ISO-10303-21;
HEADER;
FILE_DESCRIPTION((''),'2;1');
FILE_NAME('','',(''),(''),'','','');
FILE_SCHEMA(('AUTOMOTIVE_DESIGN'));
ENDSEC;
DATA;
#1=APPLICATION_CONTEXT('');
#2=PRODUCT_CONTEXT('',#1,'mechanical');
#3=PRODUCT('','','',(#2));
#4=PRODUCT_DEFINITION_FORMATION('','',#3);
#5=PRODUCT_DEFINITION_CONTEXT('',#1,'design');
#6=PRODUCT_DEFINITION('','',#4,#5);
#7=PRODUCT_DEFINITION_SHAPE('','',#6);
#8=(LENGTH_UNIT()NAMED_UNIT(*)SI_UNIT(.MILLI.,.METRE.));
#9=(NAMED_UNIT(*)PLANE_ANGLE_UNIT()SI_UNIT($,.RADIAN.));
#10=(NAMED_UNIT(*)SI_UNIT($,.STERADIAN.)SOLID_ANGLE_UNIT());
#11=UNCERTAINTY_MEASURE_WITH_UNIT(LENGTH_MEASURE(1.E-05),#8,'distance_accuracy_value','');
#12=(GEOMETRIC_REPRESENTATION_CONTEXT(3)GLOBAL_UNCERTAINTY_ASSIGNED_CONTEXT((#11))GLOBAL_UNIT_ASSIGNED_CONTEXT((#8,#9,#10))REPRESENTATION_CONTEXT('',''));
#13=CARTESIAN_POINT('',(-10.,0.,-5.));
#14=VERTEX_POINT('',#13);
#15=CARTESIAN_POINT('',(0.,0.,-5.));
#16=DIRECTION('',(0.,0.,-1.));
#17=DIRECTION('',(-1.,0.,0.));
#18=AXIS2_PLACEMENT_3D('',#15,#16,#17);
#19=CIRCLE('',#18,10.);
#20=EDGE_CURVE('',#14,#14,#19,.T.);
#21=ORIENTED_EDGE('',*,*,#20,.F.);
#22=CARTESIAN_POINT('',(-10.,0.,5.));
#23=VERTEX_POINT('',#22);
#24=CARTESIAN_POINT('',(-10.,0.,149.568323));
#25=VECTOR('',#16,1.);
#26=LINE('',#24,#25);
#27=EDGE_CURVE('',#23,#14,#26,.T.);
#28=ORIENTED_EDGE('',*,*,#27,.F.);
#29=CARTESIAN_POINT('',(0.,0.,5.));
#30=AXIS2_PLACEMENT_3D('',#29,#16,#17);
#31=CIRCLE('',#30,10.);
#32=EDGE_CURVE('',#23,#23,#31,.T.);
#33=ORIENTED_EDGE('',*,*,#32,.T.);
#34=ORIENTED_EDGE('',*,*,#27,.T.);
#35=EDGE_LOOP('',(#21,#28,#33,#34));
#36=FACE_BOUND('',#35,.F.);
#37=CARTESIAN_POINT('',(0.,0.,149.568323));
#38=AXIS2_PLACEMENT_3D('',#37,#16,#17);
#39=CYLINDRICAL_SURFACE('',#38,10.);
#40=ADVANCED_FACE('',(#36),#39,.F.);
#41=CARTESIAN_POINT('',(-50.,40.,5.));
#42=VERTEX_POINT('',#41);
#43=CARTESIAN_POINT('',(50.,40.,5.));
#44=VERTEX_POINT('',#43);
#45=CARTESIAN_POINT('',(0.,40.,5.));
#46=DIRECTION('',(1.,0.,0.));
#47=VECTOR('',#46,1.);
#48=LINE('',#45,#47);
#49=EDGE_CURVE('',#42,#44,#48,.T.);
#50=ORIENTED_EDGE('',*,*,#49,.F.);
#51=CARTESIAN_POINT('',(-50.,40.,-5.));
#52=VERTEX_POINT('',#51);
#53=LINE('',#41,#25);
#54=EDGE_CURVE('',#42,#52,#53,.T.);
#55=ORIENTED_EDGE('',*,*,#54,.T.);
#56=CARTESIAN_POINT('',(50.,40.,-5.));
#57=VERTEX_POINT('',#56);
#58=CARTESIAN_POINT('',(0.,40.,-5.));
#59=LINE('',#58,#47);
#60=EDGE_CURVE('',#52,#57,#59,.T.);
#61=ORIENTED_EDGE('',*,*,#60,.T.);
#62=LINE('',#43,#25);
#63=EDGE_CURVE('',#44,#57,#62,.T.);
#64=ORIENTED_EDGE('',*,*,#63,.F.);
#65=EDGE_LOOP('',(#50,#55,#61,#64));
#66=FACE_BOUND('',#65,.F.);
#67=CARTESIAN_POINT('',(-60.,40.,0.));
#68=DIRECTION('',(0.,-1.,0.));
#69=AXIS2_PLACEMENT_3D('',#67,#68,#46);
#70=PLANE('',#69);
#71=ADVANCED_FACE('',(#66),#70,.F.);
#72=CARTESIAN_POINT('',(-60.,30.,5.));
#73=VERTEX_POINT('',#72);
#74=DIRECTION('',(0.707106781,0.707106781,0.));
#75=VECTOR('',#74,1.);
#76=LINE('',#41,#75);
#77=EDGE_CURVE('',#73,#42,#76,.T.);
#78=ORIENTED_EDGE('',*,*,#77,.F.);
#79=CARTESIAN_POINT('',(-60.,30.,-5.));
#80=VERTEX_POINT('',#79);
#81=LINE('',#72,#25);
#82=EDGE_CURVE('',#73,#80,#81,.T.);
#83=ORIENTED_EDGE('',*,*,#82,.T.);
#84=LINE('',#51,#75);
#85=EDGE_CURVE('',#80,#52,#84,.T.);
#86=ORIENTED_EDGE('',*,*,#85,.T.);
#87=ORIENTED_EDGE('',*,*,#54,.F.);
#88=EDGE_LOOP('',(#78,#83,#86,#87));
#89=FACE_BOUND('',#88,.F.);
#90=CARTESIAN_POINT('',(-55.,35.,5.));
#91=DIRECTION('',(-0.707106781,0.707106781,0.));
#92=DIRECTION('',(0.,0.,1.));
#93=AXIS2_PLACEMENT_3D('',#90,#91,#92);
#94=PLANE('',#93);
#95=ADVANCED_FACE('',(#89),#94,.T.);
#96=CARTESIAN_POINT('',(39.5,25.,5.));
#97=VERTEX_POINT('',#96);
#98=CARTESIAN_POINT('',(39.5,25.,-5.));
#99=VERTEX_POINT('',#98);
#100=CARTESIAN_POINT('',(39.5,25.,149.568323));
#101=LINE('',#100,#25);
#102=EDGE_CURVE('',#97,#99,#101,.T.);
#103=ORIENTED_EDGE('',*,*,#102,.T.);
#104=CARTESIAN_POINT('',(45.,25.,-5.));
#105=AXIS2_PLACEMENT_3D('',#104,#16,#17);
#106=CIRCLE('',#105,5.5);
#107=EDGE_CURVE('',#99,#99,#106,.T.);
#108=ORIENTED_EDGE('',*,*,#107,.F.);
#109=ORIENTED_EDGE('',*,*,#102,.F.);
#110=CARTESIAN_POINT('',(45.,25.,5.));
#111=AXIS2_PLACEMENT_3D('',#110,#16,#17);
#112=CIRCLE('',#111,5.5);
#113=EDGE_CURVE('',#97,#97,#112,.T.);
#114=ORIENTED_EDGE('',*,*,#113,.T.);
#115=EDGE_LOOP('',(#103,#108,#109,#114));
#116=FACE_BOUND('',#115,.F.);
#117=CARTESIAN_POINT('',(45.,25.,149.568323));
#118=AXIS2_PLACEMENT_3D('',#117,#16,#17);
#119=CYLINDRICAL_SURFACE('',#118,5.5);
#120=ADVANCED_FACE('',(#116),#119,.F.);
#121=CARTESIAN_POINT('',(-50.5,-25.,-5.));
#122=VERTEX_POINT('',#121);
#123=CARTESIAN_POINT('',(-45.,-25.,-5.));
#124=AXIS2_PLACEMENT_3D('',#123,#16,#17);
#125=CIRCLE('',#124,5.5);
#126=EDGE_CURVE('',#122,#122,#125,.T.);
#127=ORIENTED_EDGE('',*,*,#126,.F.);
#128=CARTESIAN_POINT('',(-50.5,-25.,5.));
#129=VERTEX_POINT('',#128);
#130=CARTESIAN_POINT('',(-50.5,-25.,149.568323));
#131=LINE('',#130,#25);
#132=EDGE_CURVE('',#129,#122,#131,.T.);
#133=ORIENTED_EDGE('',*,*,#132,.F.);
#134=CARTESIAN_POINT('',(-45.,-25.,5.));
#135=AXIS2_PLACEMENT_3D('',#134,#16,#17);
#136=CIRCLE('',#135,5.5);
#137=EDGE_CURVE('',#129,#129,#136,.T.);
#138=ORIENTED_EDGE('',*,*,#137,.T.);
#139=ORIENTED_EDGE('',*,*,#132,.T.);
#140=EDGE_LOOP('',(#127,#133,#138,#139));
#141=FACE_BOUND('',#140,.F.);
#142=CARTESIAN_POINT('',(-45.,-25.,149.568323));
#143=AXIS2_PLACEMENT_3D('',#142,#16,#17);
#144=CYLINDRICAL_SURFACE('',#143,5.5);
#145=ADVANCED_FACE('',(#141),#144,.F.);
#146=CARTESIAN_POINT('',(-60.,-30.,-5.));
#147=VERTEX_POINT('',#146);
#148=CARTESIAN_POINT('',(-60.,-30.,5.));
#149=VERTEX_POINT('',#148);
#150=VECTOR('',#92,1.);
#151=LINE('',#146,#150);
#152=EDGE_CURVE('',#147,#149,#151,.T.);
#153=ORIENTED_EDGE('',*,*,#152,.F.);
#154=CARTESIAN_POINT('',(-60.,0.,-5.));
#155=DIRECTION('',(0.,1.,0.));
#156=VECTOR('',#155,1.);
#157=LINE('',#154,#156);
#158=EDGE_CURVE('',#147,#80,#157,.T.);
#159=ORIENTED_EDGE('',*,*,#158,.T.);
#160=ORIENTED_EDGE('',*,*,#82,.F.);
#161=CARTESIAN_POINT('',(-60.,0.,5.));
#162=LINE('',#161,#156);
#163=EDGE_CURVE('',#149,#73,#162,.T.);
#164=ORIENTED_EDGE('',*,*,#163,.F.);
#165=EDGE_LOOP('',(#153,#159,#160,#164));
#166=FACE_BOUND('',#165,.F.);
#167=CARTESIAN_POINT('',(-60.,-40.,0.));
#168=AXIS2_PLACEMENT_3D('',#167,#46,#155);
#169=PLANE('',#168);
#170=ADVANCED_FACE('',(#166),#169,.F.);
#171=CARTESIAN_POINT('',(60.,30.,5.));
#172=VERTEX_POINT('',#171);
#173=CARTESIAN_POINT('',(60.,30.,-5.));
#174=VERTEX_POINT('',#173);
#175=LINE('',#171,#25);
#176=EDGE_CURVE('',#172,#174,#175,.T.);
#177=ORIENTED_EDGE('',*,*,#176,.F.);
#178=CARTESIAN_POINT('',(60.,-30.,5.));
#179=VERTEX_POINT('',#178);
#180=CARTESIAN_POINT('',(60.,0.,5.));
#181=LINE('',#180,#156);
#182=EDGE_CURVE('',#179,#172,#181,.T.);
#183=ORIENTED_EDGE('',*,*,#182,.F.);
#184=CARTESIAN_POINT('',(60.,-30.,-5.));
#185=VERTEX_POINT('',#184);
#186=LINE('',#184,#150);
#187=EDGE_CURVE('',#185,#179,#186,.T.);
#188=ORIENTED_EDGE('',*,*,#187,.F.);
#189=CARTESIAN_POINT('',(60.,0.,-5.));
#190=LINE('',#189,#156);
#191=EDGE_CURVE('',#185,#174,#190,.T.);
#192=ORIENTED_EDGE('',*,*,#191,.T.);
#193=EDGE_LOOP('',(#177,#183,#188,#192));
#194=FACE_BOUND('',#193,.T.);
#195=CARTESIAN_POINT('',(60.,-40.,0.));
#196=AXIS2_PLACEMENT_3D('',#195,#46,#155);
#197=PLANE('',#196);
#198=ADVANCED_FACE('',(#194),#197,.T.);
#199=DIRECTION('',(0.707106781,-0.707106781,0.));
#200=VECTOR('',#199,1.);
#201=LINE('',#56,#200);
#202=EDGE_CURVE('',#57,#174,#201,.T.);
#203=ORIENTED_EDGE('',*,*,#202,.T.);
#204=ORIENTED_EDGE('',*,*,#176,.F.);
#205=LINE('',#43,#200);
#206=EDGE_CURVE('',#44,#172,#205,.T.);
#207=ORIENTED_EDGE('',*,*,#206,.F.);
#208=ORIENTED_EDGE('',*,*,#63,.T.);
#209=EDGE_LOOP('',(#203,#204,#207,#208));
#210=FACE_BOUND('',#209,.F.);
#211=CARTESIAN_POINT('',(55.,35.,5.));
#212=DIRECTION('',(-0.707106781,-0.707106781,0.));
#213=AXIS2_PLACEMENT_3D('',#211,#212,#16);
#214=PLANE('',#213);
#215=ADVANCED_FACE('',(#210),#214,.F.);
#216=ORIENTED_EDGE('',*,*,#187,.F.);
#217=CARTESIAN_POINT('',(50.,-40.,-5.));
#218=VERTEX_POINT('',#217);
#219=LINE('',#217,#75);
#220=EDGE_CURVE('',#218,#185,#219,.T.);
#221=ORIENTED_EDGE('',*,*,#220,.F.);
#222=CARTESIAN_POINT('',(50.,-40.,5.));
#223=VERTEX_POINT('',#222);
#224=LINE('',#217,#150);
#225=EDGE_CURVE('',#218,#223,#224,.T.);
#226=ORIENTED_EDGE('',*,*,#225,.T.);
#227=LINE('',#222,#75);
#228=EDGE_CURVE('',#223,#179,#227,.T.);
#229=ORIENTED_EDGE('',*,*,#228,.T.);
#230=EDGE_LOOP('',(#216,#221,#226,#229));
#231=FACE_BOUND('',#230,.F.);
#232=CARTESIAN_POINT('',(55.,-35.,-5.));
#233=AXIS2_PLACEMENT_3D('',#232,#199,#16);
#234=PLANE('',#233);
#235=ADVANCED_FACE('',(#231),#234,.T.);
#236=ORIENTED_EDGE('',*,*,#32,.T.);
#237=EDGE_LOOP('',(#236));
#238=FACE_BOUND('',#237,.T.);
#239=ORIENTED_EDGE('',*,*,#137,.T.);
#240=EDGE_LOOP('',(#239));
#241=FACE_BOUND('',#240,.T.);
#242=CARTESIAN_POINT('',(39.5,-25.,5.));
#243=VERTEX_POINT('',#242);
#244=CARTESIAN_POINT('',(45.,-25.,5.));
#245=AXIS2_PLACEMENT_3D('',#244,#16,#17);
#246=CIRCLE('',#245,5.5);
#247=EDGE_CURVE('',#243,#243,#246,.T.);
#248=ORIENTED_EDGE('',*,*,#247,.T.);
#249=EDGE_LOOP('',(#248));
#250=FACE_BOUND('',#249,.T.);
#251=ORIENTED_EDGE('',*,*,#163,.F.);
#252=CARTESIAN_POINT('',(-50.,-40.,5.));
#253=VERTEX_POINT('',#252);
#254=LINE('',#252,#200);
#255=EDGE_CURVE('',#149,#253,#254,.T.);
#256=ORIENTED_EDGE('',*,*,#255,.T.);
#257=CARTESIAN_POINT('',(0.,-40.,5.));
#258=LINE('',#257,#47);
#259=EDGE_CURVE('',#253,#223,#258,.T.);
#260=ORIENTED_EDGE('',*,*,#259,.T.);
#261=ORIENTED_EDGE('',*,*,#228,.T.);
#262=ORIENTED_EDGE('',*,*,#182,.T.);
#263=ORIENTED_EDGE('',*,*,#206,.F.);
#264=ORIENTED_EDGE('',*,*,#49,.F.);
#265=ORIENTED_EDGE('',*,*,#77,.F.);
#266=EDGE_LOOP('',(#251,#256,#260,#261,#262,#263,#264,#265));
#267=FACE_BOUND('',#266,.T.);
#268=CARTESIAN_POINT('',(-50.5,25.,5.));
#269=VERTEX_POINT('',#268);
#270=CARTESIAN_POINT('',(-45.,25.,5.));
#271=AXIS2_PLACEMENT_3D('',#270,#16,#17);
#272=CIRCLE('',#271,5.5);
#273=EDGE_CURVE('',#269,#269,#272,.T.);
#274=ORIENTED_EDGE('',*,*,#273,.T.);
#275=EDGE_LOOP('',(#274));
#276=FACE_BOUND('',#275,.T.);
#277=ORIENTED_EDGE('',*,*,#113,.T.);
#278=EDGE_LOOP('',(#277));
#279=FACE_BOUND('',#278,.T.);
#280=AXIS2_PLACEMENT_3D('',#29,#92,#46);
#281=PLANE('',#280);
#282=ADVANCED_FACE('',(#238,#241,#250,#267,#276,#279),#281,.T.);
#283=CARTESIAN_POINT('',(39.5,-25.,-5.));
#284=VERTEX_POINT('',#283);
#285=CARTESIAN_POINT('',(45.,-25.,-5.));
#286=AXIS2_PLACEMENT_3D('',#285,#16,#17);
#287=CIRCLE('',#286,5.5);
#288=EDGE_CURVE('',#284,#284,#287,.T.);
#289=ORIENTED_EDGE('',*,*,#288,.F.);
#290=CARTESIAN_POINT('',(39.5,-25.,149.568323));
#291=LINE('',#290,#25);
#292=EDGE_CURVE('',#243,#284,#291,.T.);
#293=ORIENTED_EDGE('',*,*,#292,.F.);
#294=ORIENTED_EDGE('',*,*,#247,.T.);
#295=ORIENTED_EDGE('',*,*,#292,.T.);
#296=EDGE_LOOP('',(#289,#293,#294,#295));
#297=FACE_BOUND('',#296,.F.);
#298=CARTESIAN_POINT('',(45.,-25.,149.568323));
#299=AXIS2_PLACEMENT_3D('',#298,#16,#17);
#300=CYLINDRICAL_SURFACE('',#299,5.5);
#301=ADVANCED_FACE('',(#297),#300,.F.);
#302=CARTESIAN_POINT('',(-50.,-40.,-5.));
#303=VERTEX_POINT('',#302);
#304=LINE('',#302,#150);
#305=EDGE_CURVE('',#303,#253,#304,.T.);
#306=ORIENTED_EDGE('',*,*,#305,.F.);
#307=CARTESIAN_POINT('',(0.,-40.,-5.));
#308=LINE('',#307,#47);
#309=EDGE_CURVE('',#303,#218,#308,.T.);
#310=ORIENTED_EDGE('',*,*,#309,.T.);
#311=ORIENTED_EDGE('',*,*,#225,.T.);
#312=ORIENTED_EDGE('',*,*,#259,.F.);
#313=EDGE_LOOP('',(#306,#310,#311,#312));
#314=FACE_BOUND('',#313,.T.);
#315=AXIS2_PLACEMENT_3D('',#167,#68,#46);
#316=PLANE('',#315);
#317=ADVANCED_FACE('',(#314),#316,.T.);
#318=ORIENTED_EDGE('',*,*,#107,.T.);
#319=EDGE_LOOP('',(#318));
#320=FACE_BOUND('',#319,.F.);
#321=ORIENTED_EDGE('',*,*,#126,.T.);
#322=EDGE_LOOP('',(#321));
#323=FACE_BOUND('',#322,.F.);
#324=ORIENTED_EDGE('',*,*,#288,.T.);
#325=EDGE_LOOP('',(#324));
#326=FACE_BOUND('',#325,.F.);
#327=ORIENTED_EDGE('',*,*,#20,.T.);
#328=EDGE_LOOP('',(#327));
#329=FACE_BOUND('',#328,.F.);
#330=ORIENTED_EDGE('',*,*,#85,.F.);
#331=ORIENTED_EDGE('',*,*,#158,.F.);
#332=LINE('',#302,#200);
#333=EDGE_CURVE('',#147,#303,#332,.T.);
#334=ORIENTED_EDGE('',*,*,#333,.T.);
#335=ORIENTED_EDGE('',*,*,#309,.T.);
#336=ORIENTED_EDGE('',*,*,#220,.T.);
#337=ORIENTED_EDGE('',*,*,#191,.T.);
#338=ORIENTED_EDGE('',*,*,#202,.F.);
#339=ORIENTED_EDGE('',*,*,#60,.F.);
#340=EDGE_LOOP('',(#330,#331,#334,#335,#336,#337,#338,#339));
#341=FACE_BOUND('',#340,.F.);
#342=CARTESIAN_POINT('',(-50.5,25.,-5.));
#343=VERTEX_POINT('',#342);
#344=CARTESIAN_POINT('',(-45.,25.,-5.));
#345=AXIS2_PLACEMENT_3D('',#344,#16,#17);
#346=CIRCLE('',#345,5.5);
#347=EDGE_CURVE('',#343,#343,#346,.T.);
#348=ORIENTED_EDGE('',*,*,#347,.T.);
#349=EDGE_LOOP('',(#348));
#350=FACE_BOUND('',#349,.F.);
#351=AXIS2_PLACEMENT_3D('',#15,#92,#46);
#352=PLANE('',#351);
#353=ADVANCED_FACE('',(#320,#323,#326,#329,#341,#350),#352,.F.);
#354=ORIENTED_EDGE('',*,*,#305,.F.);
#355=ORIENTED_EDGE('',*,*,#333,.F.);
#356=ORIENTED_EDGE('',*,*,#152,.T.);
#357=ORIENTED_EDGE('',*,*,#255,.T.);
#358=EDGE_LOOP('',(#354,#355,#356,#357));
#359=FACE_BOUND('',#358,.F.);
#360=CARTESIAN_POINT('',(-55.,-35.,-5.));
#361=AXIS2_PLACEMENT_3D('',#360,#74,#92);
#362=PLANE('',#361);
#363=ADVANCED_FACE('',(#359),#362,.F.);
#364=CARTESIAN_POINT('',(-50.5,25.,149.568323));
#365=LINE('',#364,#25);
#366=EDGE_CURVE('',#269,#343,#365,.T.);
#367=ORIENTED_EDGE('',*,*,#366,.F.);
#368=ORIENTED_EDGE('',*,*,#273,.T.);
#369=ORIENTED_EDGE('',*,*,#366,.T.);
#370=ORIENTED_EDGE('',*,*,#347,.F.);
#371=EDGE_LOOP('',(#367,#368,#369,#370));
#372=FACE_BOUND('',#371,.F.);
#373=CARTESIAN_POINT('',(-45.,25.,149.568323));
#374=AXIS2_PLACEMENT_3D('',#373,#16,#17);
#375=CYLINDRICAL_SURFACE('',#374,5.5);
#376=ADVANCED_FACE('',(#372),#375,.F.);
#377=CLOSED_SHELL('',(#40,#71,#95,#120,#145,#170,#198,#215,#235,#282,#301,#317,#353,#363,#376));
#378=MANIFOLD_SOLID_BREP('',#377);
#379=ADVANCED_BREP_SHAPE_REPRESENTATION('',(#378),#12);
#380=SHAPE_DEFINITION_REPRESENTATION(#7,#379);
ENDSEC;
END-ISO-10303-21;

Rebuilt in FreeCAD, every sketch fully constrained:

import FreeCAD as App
import Part
import Sketcher
Q = App.Units.Quantity


def edges_at(feature, points):
    """Names of the edges that pass closest to the given points."""
    edges = feature.Shape.Edges
    near = lambda p: min(range(len(edges)), key=lambda i: edges[i].distToShape(Part.Vertex(*p))[0])
    return sorted({f"Edge{near(p) + 1}" for p in points})

doc = App.newDocument("Part")
params = doc.addObject("Spreadsheet::Sheet", "Params")
for row, (alias, value) in enumerate([
    ("sketch1_width", "120 mm"),
    ("sketch1_height", "80 mm"),
    ("pad1_length", "10 mm"),
    ("sketch2_diameter", "11 mm"),
    ("hole_diameter", "11 mm"),
    ("sketch3_diameter", "20 mm"),
    ("hole2_diameter", "20 mm"),
    ("chamfer_size", "10 mm"),
], start=1):
    params.set(f"A{row}", alias)
    params.set(f"B{row}", "=" + value)
    params.setAlias(f"B{row}", alias)

body = doc.addObject("PartDesign::Body", "Body")

sketch1 = doc.addObject("Sketcher::SketchObject", "Sketch")
body.addObject(sketch1)
sketch1.AttachmentSupport = (doc.XY_Plane, [""])
sketch1.MapMode = "FlatFace"
sketch1.addGeometry([
    Part.LineSegment(App.Vector(-60, 40, 0), App.Vector(-60, -40, 0)),
    Part.LineSegment(App.Vector(-60, -40, 0), App.Vector(60, -40, 0)),
    Part.LineSegment(App.Vector(60, -40, 0), App.Vector(60, 40, 0)),
    Part.LineSegment(App.Vector(60, 40, 0), App.Vector(-60, 40, 0)),
], False)
sketch1.addConstraint([
    Sketcher.Constraint("Coincident", 0, 2, 1, 1),
    Sketcher.Constraint("Coincident", 1, 2, 2, 1),
    Sketcher.Constraint("Coincident", 2, 2, 3, 1),
    Sketcher.Constraint("Coincident", 3, 2, 0, 1),
    Sketcher.Constraint("Vertical", 0),
    Sketcher.Constraint("Horizontal", 1),
    Sketcher.Constraint("Vertical", 2),
    Sketcher.Constraint("Horizontal", 3),
    Sketcher.Constraint("Symmetric", 0, 2, 2, 2, -1, 1),
    Sketcher.Constraint("DistanceX", 1, 1, 1, 2, Q("120 mm")),
    Sketcher.Constraint("DistanceY", 0, 2, 0, 1, Q("80 mm")),
])
sketch1.setExpression("Constraints[9]", "Params.sketch1_width")
sketch1.setExpression("Constraints[10]", "Params.sketch1_height")
pad1 = doc.addObject("PartDesign::Pad", "Pad")
body.addObject(pad1)
pad1.Profile = sketch1
pad1.setExpression("Length", "Params.pad1_length")
pad1.Midplane = True

sketch2 = doc.addObject("Sketcher::SketchObject", "Sketch001")
body.addObject(sketch2)
sketch2.AttachmentSupport = (doc.XY_Plane, [""])
sketch2.MapMode = "FlatFace"
sketch2.AttachmentOffset = App.Placement(App.Vector(0, 0, 5), App.Rotation())
sketch2.addGeometry([
    Part.Circle(App.Vector(-45, 25, 0), App.Vector(0, 0, 1), 6),
    Part.Circle(App.Vector(45, 25, 0), App.Vector(0, 0, 1), 6),
    Part.Circle(App.Vector(45, -25, 0), App.Vector(0, 0, 1), 6),
    Part.Circle(App.Vector(-45, -25, 0), App.Vector(0, 0, 1), 6),
], False)
sketch2.addConstraint([
    Sketcher.Constraint("Equal", 0, 1),
    Sketcher.Constraint("Equal", 1, 2),
    Sketcher.Constraint("Equal", 2, 3),
    Sketcher.Constraint("Symmetric", 0, 3, 2, 3, -1, 1),
    Sketcher.Constraint("Symmetric", 1, 3, 3, 3, -1, 1),
    Sketcher.Constraint("Symmetric", 0, 3, 1, 3, -2),
    Sketcher.Constraint("Diameter", 0, Q("11 mm")),
    Sketcher.Constraint("DistanceX", 0, 3, -1, 1, Q("45 mm")),
    Sketcher.Constraint("DistanceY", -1, 1, 0, 3, Q("25 mm")),
])
sketch2.setExpression("Constraints[6]", "Params.sketch2_diameter")
doc.recompute()
hole = doc.addObject("PartDesign::Hole", "Hole")
body.addObject(hole)
hole.Profile = sketch2
hole.ThreadType = "None"
hole.setExpression("Diameter", "Params.hole_diameter")
hole.DepthType = "ThroughAll"

sketch3 = doc.addObject("Sketcher::SketchObject", "Sketch002")
body.addObject(sketch3)
sketch3.AttachmentSupport = (doc.XY_Plane, [""])
sketch3.MapMode = "FlatFace"
sketch3.AttachmentOffset = App.Placement(App.Vector(0, 0, 5), App.Rotation())
sketch3.addGeometry(Part.Circle(App.Vector(0, 0, 0), App.Vector(0, 0, 1), 10), False)
sketch3.addConstraint([
    Sketcher.Constraint("Coincident", 0, 3, -1, 1),
    Sketcher.Constraint("Diameter", 0, Q("20 mm")),
])
sketch3.setExpression("Constraints[1]", "Params.sketch3_diameter")
doc.recompute()
hole2 = doc.addObject("PartDesign::Hole", "Hole001")
body.addObject(hole2)
hole2.Profile = sketch3
hole2.ThreadType = "None"
hole2.setExpression("Diameter", "Params.hole2_diameter")
hole2.DepthType = "ThroughAll"
doc.recompute()

chamfer = doc.addObject("PartDesign::Chamfer", "Chamfer")
body.addObject(chamfer)
chamfer.Base = (hole2, edges_at(hole2, [
    (-60, -40, 0),
    (-60, 40, 0),
    (60, -40, 0),
    (60, 40, 0),
]))
chamfer.setExpression("Size", "Params.chamfer_size")

doc.recompute()
